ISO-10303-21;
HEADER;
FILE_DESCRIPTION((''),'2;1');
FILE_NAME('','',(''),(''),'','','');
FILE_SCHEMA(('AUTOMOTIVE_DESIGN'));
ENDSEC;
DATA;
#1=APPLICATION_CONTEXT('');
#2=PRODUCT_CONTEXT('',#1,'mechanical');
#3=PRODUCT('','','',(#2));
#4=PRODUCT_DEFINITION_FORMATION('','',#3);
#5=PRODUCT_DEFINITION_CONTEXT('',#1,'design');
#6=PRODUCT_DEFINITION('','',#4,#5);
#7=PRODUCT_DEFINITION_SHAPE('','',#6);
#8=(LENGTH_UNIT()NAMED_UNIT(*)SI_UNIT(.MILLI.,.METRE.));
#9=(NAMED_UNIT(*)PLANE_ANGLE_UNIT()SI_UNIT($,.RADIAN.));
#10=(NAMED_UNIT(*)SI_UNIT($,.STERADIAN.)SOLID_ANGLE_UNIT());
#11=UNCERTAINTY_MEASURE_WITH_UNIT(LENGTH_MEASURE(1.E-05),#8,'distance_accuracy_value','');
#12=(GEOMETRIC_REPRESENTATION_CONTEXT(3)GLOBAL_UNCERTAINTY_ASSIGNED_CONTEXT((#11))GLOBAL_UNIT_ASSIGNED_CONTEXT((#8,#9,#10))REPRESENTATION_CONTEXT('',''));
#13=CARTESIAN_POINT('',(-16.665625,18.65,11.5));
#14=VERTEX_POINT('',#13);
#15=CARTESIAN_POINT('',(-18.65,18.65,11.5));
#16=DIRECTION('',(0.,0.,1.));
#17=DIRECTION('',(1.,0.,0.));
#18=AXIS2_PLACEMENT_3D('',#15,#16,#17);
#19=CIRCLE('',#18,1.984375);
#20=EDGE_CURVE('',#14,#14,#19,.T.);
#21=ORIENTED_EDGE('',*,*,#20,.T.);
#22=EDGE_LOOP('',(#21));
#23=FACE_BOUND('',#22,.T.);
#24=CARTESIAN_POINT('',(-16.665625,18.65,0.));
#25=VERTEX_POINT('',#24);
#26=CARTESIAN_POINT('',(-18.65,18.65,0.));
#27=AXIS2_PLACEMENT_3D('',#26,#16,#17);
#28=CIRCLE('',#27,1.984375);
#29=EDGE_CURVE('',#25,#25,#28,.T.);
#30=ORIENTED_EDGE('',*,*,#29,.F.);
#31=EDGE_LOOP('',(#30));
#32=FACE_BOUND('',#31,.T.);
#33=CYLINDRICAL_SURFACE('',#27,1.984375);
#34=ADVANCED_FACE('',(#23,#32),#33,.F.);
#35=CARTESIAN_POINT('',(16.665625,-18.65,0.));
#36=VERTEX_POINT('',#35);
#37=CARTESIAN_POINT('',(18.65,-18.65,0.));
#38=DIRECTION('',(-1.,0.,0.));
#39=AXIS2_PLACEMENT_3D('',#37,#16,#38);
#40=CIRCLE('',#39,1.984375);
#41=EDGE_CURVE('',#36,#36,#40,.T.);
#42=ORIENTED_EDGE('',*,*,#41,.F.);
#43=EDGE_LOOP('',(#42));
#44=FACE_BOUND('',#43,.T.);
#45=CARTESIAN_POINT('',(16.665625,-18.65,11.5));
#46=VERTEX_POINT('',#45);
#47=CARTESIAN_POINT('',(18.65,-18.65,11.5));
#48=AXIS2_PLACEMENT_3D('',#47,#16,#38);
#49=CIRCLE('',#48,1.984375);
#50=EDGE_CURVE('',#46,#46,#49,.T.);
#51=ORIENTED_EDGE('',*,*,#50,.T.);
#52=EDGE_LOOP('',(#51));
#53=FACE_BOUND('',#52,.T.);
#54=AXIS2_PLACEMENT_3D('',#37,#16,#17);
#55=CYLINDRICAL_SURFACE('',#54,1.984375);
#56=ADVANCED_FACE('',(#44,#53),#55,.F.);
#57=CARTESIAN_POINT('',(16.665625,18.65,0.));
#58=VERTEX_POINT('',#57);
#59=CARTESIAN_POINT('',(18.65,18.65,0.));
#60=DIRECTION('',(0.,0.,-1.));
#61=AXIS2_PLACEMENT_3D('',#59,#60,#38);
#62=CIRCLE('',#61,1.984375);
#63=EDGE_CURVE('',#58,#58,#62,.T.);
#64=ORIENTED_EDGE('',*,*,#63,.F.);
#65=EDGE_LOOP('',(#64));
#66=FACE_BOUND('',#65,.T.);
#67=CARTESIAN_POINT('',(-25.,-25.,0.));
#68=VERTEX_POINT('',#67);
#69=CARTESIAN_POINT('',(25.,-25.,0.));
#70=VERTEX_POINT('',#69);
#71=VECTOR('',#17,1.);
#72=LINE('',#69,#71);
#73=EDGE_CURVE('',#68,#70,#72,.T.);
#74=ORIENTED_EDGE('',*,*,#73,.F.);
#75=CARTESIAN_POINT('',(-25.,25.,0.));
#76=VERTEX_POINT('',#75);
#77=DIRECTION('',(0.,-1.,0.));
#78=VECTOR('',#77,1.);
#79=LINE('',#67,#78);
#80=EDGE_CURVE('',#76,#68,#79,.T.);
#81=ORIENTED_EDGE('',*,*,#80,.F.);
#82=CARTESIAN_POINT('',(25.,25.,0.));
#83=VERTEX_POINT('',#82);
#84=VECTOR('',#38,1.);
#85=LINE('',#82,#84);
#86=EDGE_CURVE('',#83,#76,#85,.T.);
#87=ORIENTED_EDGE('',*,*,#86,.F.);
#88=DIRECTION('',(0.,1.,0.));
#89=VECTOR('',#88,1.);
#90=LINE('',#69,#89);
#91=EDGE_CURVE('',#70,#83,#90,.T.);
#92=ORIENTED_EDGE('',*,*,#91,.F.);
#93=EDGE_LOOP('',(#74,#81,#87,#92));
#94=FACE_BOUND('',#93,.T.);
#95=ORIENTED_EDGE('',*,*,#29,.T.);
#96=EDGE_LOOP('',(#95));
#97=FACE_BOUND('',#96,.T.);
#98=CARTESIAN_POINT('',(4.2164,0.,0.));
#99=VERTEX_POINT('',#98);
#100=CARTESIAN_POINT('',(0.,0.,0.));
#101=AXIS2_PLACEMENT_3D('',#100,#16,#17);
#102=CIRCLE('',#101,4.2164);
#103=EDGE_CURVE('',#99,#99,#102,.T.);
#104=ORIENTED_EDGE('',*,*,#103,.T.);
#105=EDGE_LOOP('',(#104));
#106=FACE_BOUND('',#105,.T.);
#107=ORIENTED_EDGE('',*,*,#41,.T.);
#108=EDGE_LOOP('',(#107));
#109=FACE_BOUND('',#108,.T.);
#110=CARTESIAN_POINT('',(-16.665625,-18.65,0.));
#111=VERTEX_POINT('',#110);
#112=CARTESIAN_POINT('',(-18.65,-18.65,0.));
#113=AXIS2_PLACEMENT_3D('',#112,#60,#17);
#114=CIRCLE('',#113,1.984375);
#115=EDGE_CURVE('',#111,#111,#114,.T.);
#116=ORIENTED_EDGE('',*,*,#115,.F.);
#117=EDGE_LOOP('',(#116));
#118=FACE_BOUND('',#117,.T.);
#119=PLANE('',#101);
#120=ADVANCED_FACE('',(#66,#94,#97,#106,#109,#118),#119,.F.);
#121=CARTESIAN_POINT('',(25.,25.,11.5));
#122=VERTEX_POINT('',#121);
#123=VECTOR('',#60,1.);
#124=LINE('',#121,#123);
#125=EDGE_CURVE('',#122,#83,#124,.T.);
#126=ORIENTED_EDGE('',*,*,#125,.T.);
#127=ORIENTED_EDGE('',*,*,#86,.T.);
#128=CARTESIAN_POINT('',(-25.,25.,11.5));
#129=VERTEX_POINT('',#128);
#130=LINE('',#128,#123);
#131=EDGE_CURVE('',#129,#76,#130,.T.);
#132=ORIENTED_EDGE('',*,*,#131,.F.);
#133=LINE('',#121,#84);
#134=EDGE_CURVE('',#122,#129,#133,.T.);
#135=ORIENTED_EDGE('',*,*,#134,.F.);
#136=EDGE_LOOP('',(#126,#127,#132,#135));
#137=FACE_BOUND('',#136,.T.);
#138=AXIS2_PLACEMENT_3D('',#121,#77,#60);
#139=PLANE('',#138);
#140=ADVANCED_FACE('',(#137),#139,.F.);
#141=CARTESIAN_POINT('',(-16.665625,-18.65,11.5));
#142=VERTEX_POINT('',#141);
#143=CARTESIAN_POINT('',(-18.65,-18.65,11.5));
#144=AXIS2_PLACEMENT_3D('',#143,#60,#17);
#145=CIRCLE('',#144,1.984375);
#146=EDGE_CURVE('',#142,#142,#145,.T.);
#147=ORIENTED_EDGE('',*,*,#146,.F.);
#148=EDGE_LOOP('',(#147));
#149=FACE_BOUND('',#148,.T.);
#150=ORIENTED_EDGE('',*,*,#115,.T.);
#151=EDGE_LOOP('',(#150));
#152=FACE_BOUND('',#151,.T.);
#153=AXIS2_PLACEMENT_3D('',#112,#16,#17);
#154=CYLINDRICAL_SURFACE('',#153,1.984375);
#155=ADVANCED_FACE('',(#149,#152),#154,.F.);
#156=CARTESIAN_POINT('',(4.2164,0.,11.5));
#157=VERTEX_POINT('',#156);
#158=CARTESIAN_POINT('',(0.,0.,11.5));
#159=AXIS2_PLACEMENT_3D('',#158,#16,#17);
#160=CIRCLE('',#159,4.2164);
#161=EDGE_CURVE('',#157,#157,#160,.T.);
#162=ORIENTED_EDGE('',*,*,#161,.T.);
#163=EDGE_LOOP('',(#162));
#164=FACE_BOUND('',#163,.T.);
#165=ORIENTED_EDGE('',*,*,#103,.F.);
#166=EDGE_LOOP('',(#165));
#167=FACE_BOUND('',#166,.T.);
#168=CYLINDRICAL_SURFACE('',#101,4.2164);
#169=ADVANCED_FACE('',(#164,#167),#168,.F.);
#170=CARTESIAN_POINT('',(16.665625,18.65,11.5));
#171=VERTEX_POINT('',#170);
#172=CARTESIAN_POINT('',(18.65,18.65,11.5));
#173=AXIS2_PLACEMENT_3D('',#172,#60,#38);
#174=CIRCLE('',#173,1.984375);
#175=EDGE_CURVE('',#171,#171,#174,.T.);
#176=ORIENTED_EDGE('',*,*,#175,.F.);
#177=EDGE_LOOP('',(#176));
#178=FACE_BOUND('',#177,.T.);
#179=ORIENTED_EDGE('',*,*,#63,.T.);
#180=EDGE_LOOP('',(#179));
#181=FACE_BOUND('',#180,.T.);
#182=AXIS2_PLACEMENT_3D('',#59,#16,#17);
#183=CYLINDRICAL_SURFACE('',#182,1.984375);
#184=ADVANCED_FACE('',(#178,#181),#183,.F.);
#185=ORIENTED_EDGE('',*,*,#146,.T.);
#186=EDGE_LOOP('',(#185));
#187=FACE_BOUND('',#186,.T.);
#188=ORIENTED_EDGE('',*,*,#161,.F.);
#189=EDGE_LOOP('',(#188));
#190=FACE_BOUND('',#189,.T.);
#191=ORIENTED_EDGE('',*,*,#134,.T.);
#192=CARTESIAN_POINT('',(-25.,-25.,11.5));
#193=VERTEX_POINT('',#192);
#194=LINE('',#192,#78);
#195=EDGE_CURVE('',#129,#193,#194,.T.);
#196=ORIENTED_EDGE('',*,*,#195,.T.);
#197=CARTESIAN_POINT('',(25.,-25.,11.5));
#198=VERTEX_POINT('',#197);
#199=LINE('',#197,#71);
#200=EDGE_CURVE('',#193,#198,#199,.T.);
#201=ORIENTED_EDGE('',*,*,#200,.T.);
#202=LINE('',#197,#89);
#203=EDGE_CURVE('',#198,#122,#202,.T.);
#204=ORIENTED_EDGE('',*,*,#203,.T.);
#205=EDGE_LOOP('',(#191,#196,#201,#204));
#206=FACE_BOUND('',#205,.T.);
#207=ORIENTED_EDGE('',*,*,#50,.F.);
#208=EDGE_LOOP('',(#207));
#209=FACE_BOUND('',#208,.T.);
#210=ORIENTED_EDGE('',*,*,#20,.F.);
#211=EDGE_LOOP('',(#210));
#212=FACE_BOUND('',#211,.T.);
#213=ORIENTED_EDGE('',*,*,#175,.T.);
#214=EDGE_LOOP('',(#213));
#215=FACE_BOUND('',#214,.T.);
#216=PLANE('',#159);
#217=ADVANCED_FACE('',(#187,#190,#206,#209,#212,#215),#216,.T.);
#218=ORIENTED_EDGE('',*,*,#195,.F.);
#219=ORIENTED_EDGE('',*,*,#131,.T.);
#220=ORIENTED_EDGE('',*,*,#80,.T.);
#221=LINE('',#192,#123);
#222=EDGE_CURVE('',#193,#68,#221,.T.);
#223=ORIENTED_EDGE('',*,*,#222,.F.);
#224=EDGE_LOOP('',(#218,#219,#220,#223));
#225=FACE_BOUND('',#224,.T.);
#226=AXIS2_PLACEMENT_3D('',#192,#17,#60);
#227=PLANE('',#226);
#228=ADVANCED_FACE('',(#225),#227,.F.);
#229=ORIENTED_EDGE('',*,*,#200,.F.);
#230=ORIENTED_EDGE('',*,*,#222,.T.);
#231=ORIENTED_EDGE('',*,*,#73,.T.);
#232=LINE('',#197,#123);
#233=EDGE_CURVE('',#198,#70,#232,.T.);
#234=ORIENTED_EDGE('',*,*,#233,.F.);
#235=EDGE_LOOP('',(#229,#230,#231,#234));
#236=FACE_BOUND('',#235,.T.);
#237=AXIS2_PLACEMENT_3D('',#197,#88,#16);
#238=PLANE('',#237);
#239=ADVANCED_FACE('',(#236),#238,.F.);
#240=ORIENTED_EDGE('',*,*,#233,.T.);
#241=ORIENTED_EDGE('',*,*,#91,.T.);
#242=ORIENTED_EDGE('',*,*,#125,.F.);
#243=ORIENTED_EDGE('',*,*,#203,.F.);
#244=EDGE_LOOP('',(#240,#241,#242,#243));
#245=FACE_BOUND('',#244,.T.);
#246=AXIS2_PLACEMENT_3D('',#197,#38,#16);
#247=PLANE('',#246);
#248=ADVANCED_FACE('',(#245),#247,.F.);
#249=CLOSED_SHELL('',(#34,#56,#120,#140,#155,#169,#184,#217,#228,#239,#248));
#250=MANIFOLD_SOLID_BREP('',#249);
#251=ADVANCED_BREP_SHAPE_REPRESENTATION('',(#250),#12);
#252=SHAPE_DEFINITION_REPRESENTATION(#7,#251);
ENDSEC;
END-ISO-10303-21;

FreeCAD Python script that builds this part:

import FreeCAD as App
import Part
import Sketcher

doc = App.newDocument("Part")
params = doc.addObject("Spreadsheet::Sheet", "Params")
for row, (alias, value) in enumerate([
    ("sketch1_width", "50 mm"),
    ("pad1_length", "11.5 mm"),
], start=1):
    params.set(f"A{row}", alias)
    params.set(f"B{row}", "=" + value)
    params.setAlias(f"B{row}", alias)

body = doc.addObject("PartDesign::Body", "Body")

sketch1 = doc.addObject("Sketcher::SketchObject", "Sketch")
body.addObject(sketch1)
sketch1.AttachmentSupport = (doc.XY_Plane, [""])
sketch1.MapMode = "FlatFace"
sketch1.addGeometry([
    Part.LineSegment(App.Vector(-25, 25, 0), App.Vector(-25, -25, 0)),
    Part.LineSegment(App.Vector(-25, -25, 0), App.Vector(25, -25, 0)),
    Part.LineSegment(App.Vector(25, -25, 0), App.Vector(25, 25, 0)),
    Part.LineSegment(App.Vector(25, 25, 0), App.Vector(-25, 25, 0)),
], False)
sketch1.addConstraint([
    Sketcher.Constraint("Coincident", 0, 2, 1, 1),
    Sketcher.Constraint("Coincident", 1, 2, 2, 1),
    Sketcher.Constraint("Coincident", 2, 2, 3, 1),
    Sketcher.Constraint("Coincident", 3, 2, 0, 1),
    Sketcher.Constraint("Vertical", 0),
    Sketcher.Constraint("Horizontal", 1),
    Sketcher.Constraint("Vertical", 2),
    Sketcher.Constraint("Horizontal", 3),
    Sketcher.Constraint("Symmetric", 0, 2, 2, 2, -1, 1),
    Sketcher.Constraint("Equal", 3, 0),
    Sketcher.Constraint("DistanceX", 1, 1, 1, 2, 50.0),
])
sketch1.setExpression("Constraints[10]", "Params.sketch1_width")
pad1 = doc.addObject("PartDesign::Pad", "Pad")
body.addObject(pad1)
pad1.Profile = sketch1
pad1.setExpression("Length", "Params.pad1_length")

sketch2 = doc.addObject("Sketcher::SketchObject", "Sketch001")
body.addObject(sketch2)
sketch2.AttachmentSupport = (doc.XY_Plane, [""])
sketch2.MapMode = "FlatFace"
sketch2.AttachmentOffset = App.Placement(App.Vector(0, 0, 11.5), App.Rotation())
sketch2.addGeometry(Part.Circle(App.Vector(-18.6, 18.6, 0), App.Vector(0, 0, 1), 2), False)
sketch2.addConstraint([
    Sketcher.Constraint("Diameter", 0, 3.96875),
    Sketcher.Constraint("DistanceX", 0, 3, -1, 1, 18.65),
    Sketcher.Constraint("DistanceY", -1, 1, 0, 3, 18.65),
])
pocket1 = doc.addObject("PartDesign::Pocket", "Pocket")
body.addObject(pocket1)
pocket1.Profile = sketch2
pocket1.Type = "ThroughAll"
doc.recompute()

mirrored = doc.addObject("PartDesign::Mirrored", "Mirrored")
body.addObject(mirrored)
mirrored.Originals = [pocket1]
mirrored.MirrorPlane = (doc.XZ_Plane, [""])
body.Tip = mirrored
doc.recompute()

mirrored2 = doc.addObject("PartDesign::Mirrored", "Mirrored001")
body.addObject(mirrored2)
mirrored2.Originals = [pocket1]
mirrored2.MirrorPlane = (doc.YZ_Plane, [""])
body.Tip = mirrored2

sketch3 = doc.addObject("Sketcher::SketchObject", "Sketch002")
body.addObject(sketch3)
sketch3.AttachmentSupport = (doc.XY_Plane, [""])
sketch3.MapMode = "FlatFace"
sketch3.AttachmentOffset = App.Placement(App.Vector(0, 0, 11.5), App.Rotation())
sketch3.addGeometry(Part.Circle(App.Vector(18.6, -18.6, 0), App.Vector(0, 0, 1), 2), False)
sketch3.addConstraint([
    Sketcher.Constraint("Diameter", 0, 3.96875),
    Sketcher.Constraint("DistanceX", -1, 1, 0, 3, 18.65),
    Sketcher.Constraint("DistanceY", 0, 3, -1, 1, 18.65),
])
pocket2 = doc.addObject("PartDesign::Pocket", "Pocket001")
body.addObject(pocket2)
pocket2.Profile = sketch3
pocket2.Type = "ThroughAll"

sketch4 = doc.addObject("Sketcher::SketchObject", "Sketch003")
body.addObject(sketch4)
sketch4.AttachmentSupport = (doc.XY_Plane, [""])
sketch4.MapMode = "FlatFace"
sketch4.AttachmentOffset = App.Placement(App.Vector(0, 0, 11.5), App.Rotation())
sketch4.addGeometry(Part.Circle(App.Vector(0, 0, 0), App.Vector(0, 0, 1), 4.2), False)
sketch4.addConstraint([
    Sketcher.Constraint("Coincident", 0, 3, -1, 1),
    Sketcher.Constraint("Diameter", 0, 8.4328),
])
pocket3 = doc.addObject("PartDesign::Pocket", "Pocket002")
body.addObject(pocket3)
pocket3.Profile = sketch4
pocket3.Type = "ThroughAll"

doc.recompute()
